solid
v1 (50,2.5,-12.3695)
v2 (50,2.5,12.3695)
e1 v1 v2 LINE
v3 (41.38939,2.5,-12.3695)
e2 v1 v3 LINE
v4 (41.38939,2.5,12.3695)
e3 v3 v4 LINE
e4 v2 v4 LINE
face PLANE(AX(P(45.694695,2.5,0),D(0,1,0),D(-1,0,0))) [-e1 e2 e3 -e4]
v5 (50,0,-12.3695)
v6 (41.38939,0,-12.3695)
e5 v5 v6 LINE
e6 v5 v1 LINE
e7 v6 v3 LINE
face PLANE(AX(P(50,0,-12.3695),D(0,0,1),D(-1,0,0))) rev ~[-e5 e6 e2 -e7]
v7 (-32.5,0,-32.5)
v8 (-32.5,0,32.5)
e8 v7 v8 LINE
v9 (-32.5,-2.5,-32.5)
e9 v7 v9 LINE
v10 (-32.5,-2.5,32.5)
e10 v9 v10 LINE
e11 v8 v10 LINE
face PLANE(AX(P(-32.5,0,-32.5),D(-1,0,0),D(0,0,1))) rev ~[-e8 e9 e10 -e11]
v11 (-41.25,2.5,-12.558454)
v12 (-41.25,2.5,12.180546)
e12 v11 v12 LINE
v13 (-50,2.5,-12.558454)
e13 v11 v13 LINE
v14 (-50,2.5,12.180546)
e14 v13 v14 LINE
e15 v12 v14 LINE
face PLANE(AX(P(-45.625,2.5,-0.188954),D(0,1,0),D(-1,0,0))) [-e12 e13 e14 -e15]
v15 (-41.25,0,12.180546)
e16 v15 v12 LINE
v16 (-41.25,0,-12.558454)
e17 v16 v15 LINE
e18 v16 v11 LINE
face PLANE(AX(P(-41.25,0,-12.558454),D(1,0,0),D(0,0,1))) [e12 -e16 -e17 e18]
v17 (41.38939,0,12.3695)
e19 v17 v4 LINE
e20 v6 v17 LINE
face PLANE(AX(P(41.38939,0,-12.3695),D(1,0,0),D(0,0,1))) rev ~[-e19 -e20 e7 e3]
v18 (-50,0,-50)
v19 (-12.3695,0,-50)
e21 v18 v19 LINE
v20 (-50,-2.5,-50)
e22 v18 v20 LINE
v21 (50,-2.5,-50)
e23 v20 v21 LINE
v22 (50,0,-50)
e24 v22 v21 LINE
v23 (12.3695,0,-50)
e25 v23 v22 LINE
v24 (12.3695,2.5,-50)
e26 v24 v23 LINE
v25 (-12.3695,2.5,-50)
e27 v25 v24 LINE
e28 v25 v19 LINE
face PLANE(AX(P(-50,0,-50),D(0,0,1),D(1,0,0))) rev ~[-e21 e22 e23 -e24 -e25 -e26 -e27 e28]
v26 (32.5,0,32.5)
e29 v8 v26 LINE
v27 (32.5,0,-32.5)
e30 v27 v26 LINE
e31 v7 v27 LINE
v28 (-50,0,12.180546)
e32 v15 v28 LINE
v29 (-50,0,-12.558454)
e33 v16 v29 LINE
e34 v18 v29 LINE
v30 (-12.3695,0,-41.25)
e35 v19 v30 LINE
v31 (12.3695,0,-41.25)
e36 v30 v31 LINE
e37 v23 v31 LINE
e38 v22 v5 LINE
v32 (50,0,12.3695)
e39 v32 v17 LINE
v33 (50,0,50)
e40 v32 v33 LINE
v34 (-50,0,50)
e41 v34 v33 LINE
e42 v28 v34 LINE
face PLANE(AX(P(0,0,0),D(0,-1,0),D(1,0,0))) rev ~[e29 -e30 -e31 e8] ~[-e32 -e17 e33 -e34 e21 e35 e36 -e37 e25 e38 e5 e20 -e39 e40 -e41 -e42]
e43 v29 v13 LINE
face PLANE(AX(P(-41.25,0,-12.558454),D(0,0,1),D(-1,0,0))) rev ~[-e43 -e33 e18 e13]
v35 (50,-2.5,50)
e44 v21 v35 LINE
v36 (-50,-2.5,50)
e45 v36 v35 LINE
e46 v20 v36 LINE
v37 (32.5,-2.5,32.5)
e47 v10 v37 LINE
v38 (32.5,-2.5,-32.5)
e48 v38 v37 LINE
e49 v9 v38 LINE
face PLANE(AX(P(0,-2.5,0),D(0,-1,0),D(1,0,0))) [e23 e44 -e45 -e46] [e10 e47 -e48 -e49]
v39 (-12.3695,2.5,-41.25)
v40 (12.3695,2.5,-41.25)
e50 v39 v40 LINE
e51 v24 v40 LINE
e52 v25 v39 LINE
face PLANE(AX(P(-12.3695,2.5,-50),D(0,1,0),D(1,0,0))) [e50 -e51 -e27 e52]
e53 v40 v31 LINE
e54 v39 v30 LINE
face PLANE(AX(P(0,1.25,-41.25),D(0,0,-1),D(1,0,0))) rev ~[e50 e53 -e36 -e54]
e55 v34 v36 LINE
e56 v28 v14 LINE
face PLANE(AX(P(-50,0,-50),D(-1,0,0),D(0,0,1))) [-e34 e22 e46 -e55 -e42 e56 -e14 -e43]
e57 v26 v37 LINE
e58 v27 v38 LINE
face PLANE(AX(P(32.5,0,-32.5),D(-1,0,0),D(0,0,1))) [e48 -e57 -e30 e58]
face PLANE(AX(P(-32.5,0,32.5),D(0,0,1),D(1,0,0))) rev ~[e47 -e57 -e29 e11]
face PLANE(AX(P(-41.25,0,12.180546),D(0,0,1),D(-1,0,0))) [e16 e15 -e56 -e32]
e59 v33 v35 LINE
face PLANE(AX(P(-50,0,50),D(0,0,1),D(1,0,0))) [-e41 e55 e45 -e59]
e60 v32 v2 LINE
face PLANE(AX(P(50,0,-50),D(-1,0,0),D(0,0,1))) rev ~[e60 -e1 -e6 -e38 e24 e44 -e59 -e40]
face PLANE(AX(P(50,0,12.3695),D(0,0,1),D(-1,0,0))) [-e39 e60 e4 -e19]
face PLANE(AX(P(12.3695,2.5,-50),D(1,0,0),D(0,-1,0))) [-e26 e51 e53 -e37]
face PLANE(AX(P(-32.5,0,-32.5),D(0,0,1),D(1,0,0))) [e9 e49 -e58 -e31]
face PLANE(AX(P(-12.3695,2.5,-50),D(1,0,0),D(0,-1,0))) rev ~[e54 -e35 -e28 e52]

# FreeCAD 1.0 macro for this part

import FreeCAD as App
import Part
import Sketcher
from FreeCAD import Vector
Q = App.Units.Quantity


def add_polygon(sketch, points):
    """Adds a closed chain of lines whose ends are joined by coincident constraints."""
    first, n = sketch.GeometryCount, len(points)
    for a, b in zip(points, points[1:] + points[:1]):
        sketch.addGeometry(Part.LineSegment(App.Vector(*a, 0), App.Vector(*b, 0)), False)
    for i in range(n):
        sketch.addConstraint(Sketcher.Constraint("Coincident", first + i, 2, first + (i + 1) % n, 1))

doc = App.newDocument("Part")
body = doc.addObject("PartDesign::Body", "Body")

sketch1 = body.newObject("Sketcher::SketchObject", "Sketch")
sketch1.AttachmentSupport = (doc.getObject("XZ_Plane"), [""])
sketch1.MapMode = "FlatFace"
add_polygon(sketch1, [(-50, 50), (-50, -50), (50, -50), (50, 50)])
add_polygon(sketch1, [(32, -32), (-32, -32), (-32, 32), (32, 32)])
sketch1.addConstraint([
    Sketcher.Constraint("Vertical", 0),
    Sketcher.Constraint("Horizontal", 1),
    Sketcher.Constraint("Vertical", 2),
    Sketcher.Constraint("Horizontal", 3),
    Sketcher.Constraint("Horizontal", 4),
    Sketcher.Constraint("Vertical", 5),
    Sketcher.Constraint("Horizontal", 6),
    Sketcher.Constraint("Vertical", 7),
    Sketcher.Constraint("Symmetric", 0, 2, 2, 2, -1, 1),
    Sketcher.Constraint("Symmetric", 4, 2, 6, 2, -1, 1),
    Sketcher.Constraint("Equal", 3, 0),
    Sketcher.Constraint("Equal", 6, 5),
    Sketcher.Constraint("DistanceX", 1, 1, 1, 2, Q("100 mm")),
    Sketcher.Constraint("DistanceX", 4, 2, 4, 1, Q("65 mm")),
])
pad1 = body.newObject("PartDesign::Pad", "Pad")
pad1.Profile = sketch1
pad1.Length = 2.5

sketch2 = body.newObject("Sketcher::SketchObject", "Sketch001")
sketch2.AttachmentSupport = (doc.getObject("XZ_Plane"), [""])
sketch2.MapMode = "FlatFace"
add_polygon(sketch2, [(-41, 12), (-41, -13), (-50, -13), (-50, 12)])
sketch2.addConstraint([
    Sketcher.Constraint("Vertical", 0),
    Sketcher.Constraint("Horizontal", 1),
    Sketcher.Constraint("Vertical", 2),
    Sketcher.Constraint("Horizontal", 3),
    Sketcher.Constraint("DistanceX", 1, 2, -1, 1, Q("50 mm")),
    Sketcher.Constraint("DistanceX", 1, 2, 1, 1, Q("8.75 mm")),
    Sketcher.Constraint("DistanceY", 0, 2, 0, 1, Q("24.739 mm")),
    Sketcher.Constraint("DistanceY", 0, 2, -1, 1, Q("12.558454 mm")),
])
pad2 = body.newObject("PartDesign::Pad", "Pad001")
pad2.Profile = sketch2
pad2.Length = 2.5
pad2.Reversed = True

sketch3 = body.newObject("Sketcher::SketchObject", "Sketch002")
sketch3.AttachmentSupport = (doc.getObject("XZ_Plane"), [""])
sketch3.MapMode = "FlatFace"
add_polygon(sketch3, [(50, 12), (50, -12), (41, -12), (41, 12)])
sketch3.addConstraint([
    Sketcher.Constraint("Vertical", 0),
    Sketcher.Constraint("Horizontal", 1),
    Sketcher.Constraint("Vertical", 2),
    Sketcher.Constraint("Horizontal", 3),
    Sketcher.Constraint("DistanceX", -1, 1, 0, 2, Q("50 mm")),
    Sketcher.Constraint("DistanceY", 0, 2, 0, 1, Q("24.739 mm")),
    Sketcher.Constraint("DistanceX", 1, 2, 1, 1, Q("8.61061 mm")),
    Sketcher.Constraint("DistanceY", 0, 2, -1, 1, Q("12.3695 mm")),
])
pad3 = body.newObject("PartDesign::Pad", "Pad002")
pad3.Profile = sketch3
pad3.Length = 2.5
pad3.Reversed = True

sketch4 = body.newObject("Sketcher::SketchObject", "Sketch003")
sketch4.AttachmentSupport = (doc.getObject("XY_Plane"), [""])
sketch4.MapMode = "FlatFace"
sketch4.AttachmentOffset = App.Placement(Vector(0, 0, -50), App.Rotation())
add_polygon(sketch4, [(-12.4, 0), (-12.4, 2.5), (12.4, 2.5), (12.4, 0)])
sketch4.addConstraint([
    Sketcher.Constraint("Vertical", 0),
    Sketcher.Constraint("Horizontal", 1),
    Sketcher.Constraint("Vertical", 2),
    Sketcher.Constraint("Horizontal", 3),
    Sketcher.Constraint("Symmetric", 2, 2, 3, 2, -1, 1),
    Sketcher.Constraint("DistanceY", 0, 1, 0, 2, Q("2.5 mm")),
    Sketcher.Constraint("DistanceX", 1, 1, 1, 2, Q("24.739 mm")),
])
pad4 = body.newObject("PartDesign::Pad", "Pad003")
pad4.Profile = sketch4
pad4.Length = 8.75

doc.recompute()
